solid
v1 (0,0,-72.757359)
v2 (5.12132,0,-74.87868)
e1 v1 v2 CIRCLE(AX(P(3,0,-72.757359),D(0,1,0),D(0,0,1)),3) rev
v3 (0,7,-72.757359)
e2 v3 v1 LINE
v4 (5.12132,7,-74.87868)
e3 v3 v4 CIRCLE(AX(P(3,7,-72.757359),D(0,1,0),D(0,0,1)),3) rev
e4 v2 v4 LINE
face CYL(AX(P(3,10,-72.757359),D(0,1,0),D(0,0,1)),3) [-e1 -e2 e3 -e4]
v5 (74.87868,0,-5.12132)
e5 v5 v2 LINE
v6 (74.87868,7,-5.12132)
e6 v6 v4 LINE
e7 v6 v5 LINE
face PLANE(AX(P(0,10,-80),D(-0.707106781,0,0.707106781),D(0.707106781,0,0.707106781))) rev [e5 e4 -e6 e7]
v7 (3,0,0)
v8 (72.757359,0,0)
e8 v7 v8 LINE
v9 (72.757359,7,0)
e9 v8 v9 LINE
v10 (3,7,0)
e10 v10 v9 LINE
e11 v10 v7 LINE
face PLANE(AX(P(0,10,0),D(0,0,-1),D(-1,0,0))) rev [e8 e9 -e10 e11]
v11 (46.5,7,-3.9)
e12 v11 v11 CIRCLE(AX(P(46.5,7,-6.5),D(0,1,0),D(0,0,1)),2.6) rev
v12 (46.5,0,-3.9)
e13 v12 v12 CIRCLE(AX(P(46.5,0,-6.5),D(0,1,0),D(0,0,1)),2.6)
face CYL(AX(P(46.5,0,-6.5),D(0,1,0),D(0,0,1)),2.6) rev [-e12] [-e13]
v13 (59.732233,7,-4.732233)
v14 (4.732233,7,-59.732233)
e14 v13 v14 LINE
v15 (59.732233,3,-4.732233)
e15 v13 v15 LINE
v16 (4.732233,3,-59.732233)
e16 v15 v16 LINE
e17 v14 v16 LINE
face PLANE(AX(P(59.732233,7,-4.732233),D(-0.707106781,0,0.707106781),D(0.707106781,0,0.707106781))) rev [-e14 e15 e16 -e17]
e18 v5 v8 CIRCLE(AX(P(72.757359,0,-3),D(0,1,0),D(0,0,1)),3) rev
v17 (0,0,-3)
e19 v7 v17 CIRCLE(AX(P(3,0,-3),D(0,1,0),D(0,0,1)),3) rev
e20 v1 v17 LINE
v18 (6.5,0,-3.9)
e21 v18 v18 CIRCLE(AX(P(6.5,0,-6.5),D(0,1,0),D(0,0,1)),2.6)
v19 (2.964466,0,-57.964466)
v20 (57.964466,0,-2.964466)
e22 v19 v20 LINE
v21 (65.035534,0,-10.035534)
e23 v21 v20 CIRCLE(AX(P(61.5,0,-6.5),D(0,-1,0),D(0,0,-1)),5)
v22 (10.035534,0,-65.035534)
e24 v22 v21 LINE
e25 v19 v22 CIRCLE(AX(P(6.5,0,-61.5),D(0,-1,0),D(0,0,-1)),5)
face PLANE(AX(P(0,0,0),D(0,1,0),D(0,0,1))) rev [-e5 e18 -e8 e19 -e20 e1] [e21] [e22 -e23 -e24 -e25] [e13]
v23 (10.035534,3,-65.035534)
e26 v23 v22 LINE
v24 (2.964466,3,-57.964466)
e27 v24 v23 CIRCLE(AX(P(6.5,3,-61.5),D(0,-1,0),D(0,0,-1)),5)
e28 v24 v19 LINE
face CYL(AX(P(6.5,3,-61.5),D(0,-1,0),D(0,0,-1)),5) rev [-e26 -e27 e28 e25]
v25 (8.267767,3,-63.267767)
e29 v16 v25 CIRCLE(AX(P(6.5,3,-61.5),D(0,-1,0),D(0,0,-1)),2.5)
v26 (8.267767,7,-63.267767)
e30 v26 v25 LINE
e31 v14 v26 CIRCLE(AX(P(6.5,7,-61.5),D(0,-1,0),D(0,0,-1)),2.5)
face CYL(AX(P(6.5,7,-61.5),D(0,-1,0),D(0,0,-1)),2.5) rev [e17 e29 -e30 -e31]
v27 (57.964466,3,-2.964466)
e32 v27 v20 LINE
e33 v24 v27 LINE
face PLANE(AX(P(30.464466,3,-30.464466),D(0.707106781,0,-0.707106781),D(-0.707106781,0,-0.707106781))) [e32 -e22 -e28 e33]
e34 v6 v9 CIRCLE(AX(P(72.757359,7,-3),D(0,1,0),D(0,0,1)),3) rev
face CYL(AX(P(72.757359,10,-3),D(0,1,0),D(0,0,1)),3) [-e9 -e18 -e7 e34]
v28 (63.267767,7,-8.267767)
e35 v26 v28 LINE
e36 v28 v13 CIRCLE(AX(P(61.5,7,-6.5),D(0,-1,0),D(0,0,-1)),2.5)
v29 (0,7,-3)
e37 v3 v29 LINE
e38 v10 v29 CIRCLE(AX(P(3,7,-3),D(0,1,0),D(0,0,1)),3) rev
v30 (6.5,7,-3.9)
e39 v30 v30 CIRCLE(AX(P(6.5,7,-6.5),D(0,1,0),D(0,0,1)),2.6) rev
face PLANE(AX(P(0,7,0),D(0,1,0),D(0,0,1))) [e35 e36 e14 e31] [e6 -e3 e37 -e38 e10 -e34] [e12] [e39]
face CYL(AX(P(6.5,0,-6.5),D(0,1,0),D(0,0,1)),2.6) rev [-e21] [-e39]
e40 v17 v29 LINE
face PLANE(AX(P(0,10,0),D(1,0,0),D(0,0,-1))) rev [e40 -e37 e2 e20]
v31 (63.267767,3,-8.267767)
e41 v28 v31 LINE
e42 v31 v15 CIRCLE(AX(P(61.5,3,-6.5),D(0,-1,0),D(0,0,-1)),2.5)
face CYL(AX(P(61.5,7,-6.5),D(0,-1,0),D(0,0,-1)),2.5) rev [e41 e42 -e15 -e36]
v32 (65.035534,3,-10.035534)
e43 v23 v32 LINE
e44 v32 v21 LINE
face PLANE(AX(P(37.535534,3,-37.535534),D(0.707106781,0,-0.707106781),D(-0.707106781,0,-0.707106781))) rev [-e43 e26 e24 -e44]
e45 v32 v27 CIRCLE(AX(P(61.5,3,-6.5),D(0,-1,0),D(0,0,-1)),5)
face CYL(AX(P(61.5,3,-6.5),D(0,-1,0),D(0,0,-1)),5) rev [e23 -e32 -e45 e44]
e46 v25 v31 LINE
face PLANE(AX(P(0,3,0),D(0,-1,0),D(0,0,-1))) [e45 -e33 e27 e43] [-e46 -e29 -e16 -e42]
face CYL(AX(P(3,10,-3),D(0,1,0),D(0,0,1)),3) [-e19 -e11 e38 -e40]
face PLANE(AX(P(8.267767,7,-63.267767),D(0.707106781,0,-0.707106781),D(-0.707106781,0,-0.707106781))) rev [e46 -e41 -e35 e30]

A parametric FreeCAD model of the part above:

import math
import FreeCAD as App
import Part
import Sketcher
Q = App.Units.Quantity


def edges_at(feature, points):
    """Names of the edges that pass closest to the given points."""
    edges = feature.Shape.Edges
    near = lambda p: min(range(len(edges)), key=lambda i: edges[i].distToShape(Part.Vertex(*p))[0])
    return sorted({f"Edge{near(p) + 1}" for p in points})

doc = App.newDocument("Part")
body = doc.addObject("PartDesign::Body", "Body")

sketch1 = doc.addObject("Sketcher::SketchObject", "Sketch")
body.addObject(sketch1)
sketch1.AttachmentSupport = (doc.XZ_Plane, [""])
sketch1.MapMode = "FlatFace"
sketch1.addGeometry([
    Part.LineSegment(App.Vector(0, -80, 0), App.Vector(0, 0, 0)),
    Part.LineSegment(App.Vector(0, 0, 0), App.Vector(80, 0, 0)),
    Part.LineSegment(App.Vector(80, 0, 0), App.Vector(0, -80, 0)),
], False)
sketch1.addConstraint([
    Sketcher.Constraint("Coincident", 0, 2, 1, 1),
    Sketcher.Constraint("Coincident", 1, 2, 2, 1),
    Sketcher.Constraint("Coincident", 2, 2, 0, 1),
    Sketcher.Constraint("Vertical", 0),
    Sketcher.Constraint("Horizontal", 1),
    Sketcher.Constraint("Coincident", 0, 2, -1, 1),
    Sketcher.Constraint("Equal", 1, 0),
    Sketcher.Constraint("DistanceX", 1, 1, 1, 2, Q("80 mm")),
])
pad1 = doc.addObject("PartDesign::Pad", "Pad")
body.addObject(pad1)
pad1.Profile = sketch1
pad1.Length = 10
pad1.Reversed = True

sketch2 = doc.addObject("Sketcher::SketchObject", "Sketch001")
body.addObject(sketch2)
sketch2.AttachmentSupport = (doc.XZ_Plane, [""])
sketch2.MapMode = "FlatFace"
sketch2.AttachmentOffset = App.Placement(App.Vector(0, 0, -10), App.Rotation())
sketch2.addGeometry([
    Part.Circle(App.Vector(6.5, -6.5, 0), App.Vector(0, 0, 1), 2.6),
    Part.Circle(App.Vector(6.5, -46.5, 0), App.Vector(0, 0, 1), 2.6),
    Part.Circle(App.Vector(46.5, -6.5, 0), App.Vector(0, 0, 1), 2.6),
], False)
sketch2.addConstraint([
    Sketcher.Constraint("Equal", 0, 1),
    Sketcher.Constraint("Equal", 1, 2),
    Sketcher.Constraint("Horizontal", 0, 3, 2, 3),
    Sketcher.Constraint("Vertical", 0, 3, 1, 3),
    Sketcher.Constraint("Diameter", 0, Q("5.2 mm")),
    Sketcher.Constraint("DistanceY", 1, 3, 0, 3, Q("40 mm")),
    Sketcher.Constraint("DistanceX", 0, 3, 2, 3, Q("40 mm")),
    Sketcher.Constraint("DistanceX", -1, 1, 0, 3, Q("6.5 mm")),
    Sketcher.Constraint("DistanceY", 0, 3, -1, 1, Q("6.5 mm")),
])
pocket1 = doc.addObject("PartDesign::Pocket", "Pocket")
body.addObject(pocket1)
pocket1.Profile = sketch2
pocket1.Length = 10
pocket1.Reversed = True
doc.recompute()

fillet = doc.addObject("PartDesign::Fillet", "Fillet")
body.addObject(fillet)
fillet.Base = (pocket1, edges_at(pocket1, [(80, 5, 0)]))
fillet.Radius = 3
doc.recompute()

fillet2 = doc.addObject("PartDesign::Fillet", "Fillet001")
body.addObject(fillet2)
fillet2.Base = (fillet, edges_at(fillet, [(0, 5, -80)]))
fillet2.Radius = 3
doc.recompute()

fillet3 = doc.addObject("PartDesign::Fillet", "Fillet002")
body.addObject(fillet3)
fillet3.Base = (fillet2, edges_at(fillet2, [(0, 5, 0)]))
fillet3.Radius = 3

sketch3 = doc.addObject("Sketcher::SketchObject", "Sketch002")
body.addObject(sketch3)
sketch3.AttachmentSupport = (doc.XZ_Plane, [""])
sketch3.MapMode = "FlatFace"
sketch3.AttachmentOffset = App.Placement(App.Vector(0, 0, -10), App.Rotation())
sketch3.addGeometry([
    Part.Circle(App.Vector(6, -6, 0), App.Vector(0, 0, 1), 6),
    Part.Circle(App.Vector(6, -46, 0), App.Vector(0, 0, 1), 6),
    Part.Circle(App.Vector(46, -6, 0), App.Vector(0, 0, 1), 6),
], False)
sketch3.addConstraint([
    Sketcher.Constraint("Equal", 0, 1),
    Sketcher.Constraint("Equal", 1, 2),
    Sketcher.Constraint("Horizontal", 0, 3, 2, 3),
    Sketcher.Constraint("Vertical", 0, 3, 1, 3),
    Sketcher.Constraint("Diameter", 0, Q("11 mm")),
    Sketcher.Constraint("DistanceY", 1, 3, 0, 3, Q("40 mm")),
    Sketcher.Constraint("DistanceX", 0, 3, 2, 3, Q("40 mm")),
    Sketcher.Constraint("DistanceX", -1, 1, 0, 3, Q("6.5 mm")),
    Sketcher.Constraint("DistanceY", 0, 3, -1, 1, Q("6.5 mm")),
])
pocket2 = doc.addObject("PartDesign::Pocket", "Pocket001")
body.addObject(pocket2)
pocket2.Profile = sketch3
pocket2.Length = 5
pocket2.Reversed = True

sketch4 = doc.addObject("Sketcher::SketchObject", "Sketch003")
body.addObject(sketch4)
sketch4.AttachmentSupport = (doc.XZ_Plane, [""])
sketch4.MapMode = "FlatFace"
sketch4.addGeometry(Part.Circle(App.Vector(8.5, -46.5, 0), App.Vector(0, 0, 1), 2.6), False)
sketch4.addConstraint([
    Sketcher.Constraint("DistanceX", -1, 1, 0, 3, Q("8.5 mm")),
    Sketcher.Constraint("DistanceY", 0, 3, -1, 1, Q("46.5 mm")),
    Sketcher.Constraint("Diameter", 0, Q("5.107365 mm")),
])
pocket3 = doc.addObject("PartDesign::Pocket", "Pocket002")
body.addObject(pocket3)
pocket3.Profile = sketch4
pocket3.Length = 9

sketch5 = doc.addObject("Sketcher::SketchObject", "Sketch004")
body.addObject(sketch5)
sketch5.AttachmentSupport = (doc.XZ_Plane, [""])
sketch5.MapMode = "FlatFace"
sketch5.addGeometry([
    Part.ArcOfCircle(Part.Circle(App.Vector(8.5, -46.5, 0), App.Vector(0, 0, 1), 2.6), math.radians(112), math.radians(248)),
    Part.ArcOfCircle(Part.Circle(App.Vector(6.5, -46.5, 0), App.Vector(0, 0, 1), 2.6), math.radians(66), math.radians(294)),
], False)
sketch5.addConstraint([
    Sketcher.Constraint("Coincident", 0, 1, 1, 1),
    Sketcher.Constraint("Coincident", 1, 2, 0, 2),
    Sketcher.Constraint("Horizontal", 0, 3, 1, 3),
    Sketcher.Constraint("Radius", 1, Q("2.6 mm")),
    Sketcher.Constraint("DistanceX", 1, 3, 0, 3, Q("2 mm")),
    Sketcher.Constraint("DistanceX", -1, 1, 0, 3, Q("8.5 mm")),
    Sketcher.Constraint("DistanceY", 0, 3, -1, 1, Q("46.5 mm")),
    Sketcher.Constraint("Radius", 0, Q("2.553683 mm")),
])
pad2 = doc.addObject("PartDesign::Pad", "Pad001")
body.addObject(pad2)
pad2.Profile = sketch5
pad2.Length = 5
pad2.Reversed = True

sketch6 = doc.addObject("Sketcher::SketchObject", "Sketch005")
body.addObject(sketch6)
sketch6.AttachmentSupport = (doc.XZ_Plane, [""])
sketch6.MapMode = "FlatFace"
sketch6.AttachmentOffset = App.Placement(App.Vector(0, 0, -10), App.Rotation())
sketch6.addGeometry([
    Part.ArcOfCircle(Part.Circle(App.Vector(8, -46, 0), App.Vector(0, 0, 1), 6), math.radians(-100), math.radians(100)),
    Part.ArcOfCircle(Part.Circle(App.Vector(6, -46, 0), App.Vector(0, 0, 1), 6), math.radians(80), math.radians(280)),
], False)
sketch6.addConstraint([
    Sketcher.Constraint("Coincident", 0, 1, 1, 2),
    Sketcher.Constraint("Coincident", 1, 1, 0, 2),
    Sketcher.Constraint("Equal", 0, 1),
    Sketcher.Constraint("Horizontal", 0, 3, 1, 3),
    Sketcher.Constraint("Radius", 0, Q("5.5 mm")),
    Sketcher.Constraint("DistanceX", 1, 3, 0, 3, Q("2 mm")),
    Sketcher.Constraint("DistanceX", -1, 1, 0, 3, Q("8.5 mm")),
    Sketcher.Constraint("DistanceY", 0, 3, -1, 1, Q("46.5 mm")),
])
pocket4 = doc.addObject("PartDesign::Pocket", "Pocket003")
body.addObject(pocket4)
pocket4.Profile = sketch6
pocket4.Length = 5
pocket4.Reversed = True

sketch7 = doc.addObject("Sketcher::SketchObject", "Sketch006")
body.addObject(sketch7)
sketch7.AttachmentSupport = (doc.XZ_Plane, [""])
sketch7.MapMode = "FlatFace"
sketch7.AttachmentOffset = App.Placement(App.Vector(0, 0, -10), App.Rotation())
sketch7.addGeometry([
    Part.ArcOfCircle(Part.Circle(App.Vector(8, -46, 0), App.Vector(0, 0, 1), 6), math.radians(100), math.radians(260)),
    Part.ArcOfCircle(Part.Circle(App.Vector(6, -46, 0), App.Vector(0, 0, 1), 6), math.radians(80), math.radians(280)),
], False)
sketch7.addConstraint([
    Sketcher.Constraint("Coincident", 0, 1, 1, 1),
    Sketcher.Constraint("Coincident", 1, 2, 0, 2),
    Sketcher.Constraint("Equal", 0, 1),
    Sketcher.Constraint("Horizontal", 0, 3, 1, 3),
    Sketcher.Constraint("Radius", 0, Q("5.5 mm")),
    Sketcher.Constraint("DistanceX", 1, 3, 0, 3, Q("2 mm")),
    Sketcher.Constraint("DistanceX", -1, 1, 0, 3, Q("8.5 mm")),
    Sketcher.Constraint("DistanceY", 0, 3, -1, 1, Q("46.5 mm")),
])
pad3 = doc.addObject("PartDesign::Pad", "Pad002")
body.addObject(pad3)
pad3.Profile = sketch7
pad3.Length = 5

sketch8 = doc.addObject("Sketcher::SketchObject", "Sketch007")
body.addObject(sketch8)
sketch8.AttachmentSupport = (doc.XZ_Plane, [""])
sketch8.MapMode = "FlatFace"
sketch8.AttachmentOffset = App.Placement(App.Vector(0, 0, -10), App.Rotation())
sketch8.addGeometry(Part.Circle(App.Vector(8, -46, 0), App.Vector(0, 0, 1), 6), False)
sketch8.addConstraint([
    Sketcher.Constraint("Diameter", 0, Q("11 mm")),
    Sketcher.Constraint("DistanceX", -1, 1, 0, 3, Q("8.5 mm")),
    Sketcher.Constraint("DistanceY", 0, 3, -1, 1, Q("46.5 mm")),
])
pad4 = doc.addObject("PartDesign::Pad", "Pad003")
body.addObject(pad4)
pad4.Profile = sketch8
pad4.Length = 5

sketch9 = doc.addObject("Sketcher::SketchObject", "Sketch008")
body.addObject(sketch9)
sketch9.AttachmentSupport = (doc.XZ_Plane, [""])
sketch9.MapMode = "FlatFace"
sketch9.AttachmentOffset = App.Placement(App.Vector(0, 0, -10), App.Rotation())
sketch9.addGeometry(Part.Circle(App.Vector(8, -46, 0), App.Vector(0, 0, 1), 6), False)
sketch9.addConstraint([
    Sketcher.Constraint("Diameter", 0, Q("11 mm")),
    Sketcher.Constraint("DistanceX", -1, 1, 0, 3, Q("8.5 mm")),
    Sketcher.Constraint("DistanceY", 0, 3, -1, 1, Q("46.5 mm")),
])
pocket5 = doc.addObject("PartDesign::Pocket", "Pocket004")
body.addObject(pocket5)
pocket5.Profile = sketch9
pocket5.Length = 3
pocket5.Reversed = True

sketch10 = doc.addObject("Sketcher::SketchObject", "Sketch009")
body.addObject(sketch10)
sketch10.AttachmentSupport = (doc.XZ_Plane, [""])
sketch10.MapMode = "FlatFace"
sketch10.AttachmentOffset = App.Placement(App.Vector(0, 0, -5), App.Rotation())
sketch10.addGeometry(Part.Circle(App.Vector(8.5, -46.5, 0), App.Vector(0, 0, 1), 2.6), False)
sketch10.addConstraint([
    Sketcher.Constraint("Diameter", 0, Q("5.3 mm")),
    Sketcher.Constraint("DistanceX", -1, 1, 0, 3, Q("8.5 mm")),
    Sketcher.Constraint("DistanceY", 0, 3, -1, 1, Q("46.5 mm")),
])
pocket6 = doc.addObject("PartDesign::Pocket", "Pocket005")
body.addObject(pocket6)
pocket6.Profile = sketch10
pocket6.Length = 3

sketch11 = doc.addObject("Sketcher::SketchObject", "Sketch010")
body.addObject(sketch11)
sketch11.AttachmentSupport = (doc.XZ_Plane, [""])
sketch11.MapMode = "FlatFace"
sketch11.addGeometry(Part.Circle(App.Vector(8.5, -46.5, 0), App.Vector(0, 0, 1), 2.6), False)
sketch11.addConstraint([
    Sketcher.Constraint("Diameter", 0, Q("5.3 mm")),
    Sketcher.Constraint("DistanceX", -1, 1, 0, 3, Q("8.5 mm")),
    Sketcher.Constraint("DistanceY", 0, 3, -1, 1, Q("46.5 mm")),
])
pocket7 = doc.addObject("PartDesign::Pocket", "Pocket006")
body.addObject(pocket7)
pocket7.Profile = sketch11
pocket7.Length = 5

sketch12 = doc.addObject("Sketcher::SketchObject", "Sketch011")
body.addObject(sketch12)
sketch12.AttachmentSupport = (doc.XZ_Plane, [""])
sketch12.MapMode = "FlatFace"
sketch12.addGeometry(Part.Circle(App.Vector(8.5, -46.5, 0), App.Vector(0, 0, 1), 2.6), False)
sketch12.addConstraint([
    Sketcher.Constraint("Diameter", 0, Q("5.3 mm")),
    Sketcher.Constraint("DistanceX", -1, 1, 0, 3, Q("8.5 mm")),
    Sketcher.Constraint("DistanceY", 0, 3, -1, 1, Q("46.5 mm")),
])
pad5 = doc.addObject("PartDesign::Pad", "Pad004")
body.addObject(pad5)
pad5.Profile = sketch12
pad5.Length = 10
pad5.Reversed = True

sketch13 = doc.addObject("Sketcher::SketchObject", "Sketch012")
body.addObject(sketch13)
sketch13.AttachmentSupport = (doc.XZ_Plane, [""])
sketch13.MapMode = "FlatFace"
sketch13.AttachmentOffset = App.Placement(App.Vector(0, 0, -10), App.Rotation())
sketch13.addGeometry(Part.Circle(App.Vector(8, -46, 0), App.Vector(0, 0, 1), 6), False)
sketch13.addConstraint([
    Sketcher.Constraint("Diameter", 0, Q("11 mm")),
    Sketcher.Constraint("DistanceX", -1, 1, 0, 3, Q("8.5 mm")),
    Sketcher.Constraint("DistanceY", 0, 3, -1, 1, Q("46.5 mm")),
])
pad6 = doc.addObject("PartDesign::Pad", "Pad005")
body.addObject(pad6)
pad6.Profile = sketch13
pad6.Length = 3

sketch14 = doc.addObject("Sketcher::SketchObject", "Sketch013")
body.addObject(sketch14)
sketch14.AttachmentSupport = (doc.XZ_Plane, [""])
sketch14.MapMode = "FlatFace"
sketch14.addGeometry([
    Part.ArcOfCircle(Part.Circle(App.Vector(6.5, -61.5, 0), App.Vector(0, 0, 1), 5), math.radians(135), math.radians(270)),
    Part.ArcOfCircle(Part.Circle(App.Vector(6.5, -61.5, 0), App.Vector(0, 0, 1), 5), math.radians(-90), math.radians(-45)),
    Part.LineSegment(App.Vector(10, -65, 0), App.Vector(65, -10, 0)),
    Part.ArcOfCircle(Part.Circle(App.Vector(61.5, -6.5, 0), App.Vector(0, 0, 1), 5), math.radians(-45), math.radians(0)),
    Part.ArcOfCircle(Part.Circle(App.Vector(61.5, -6.5, 0), App.Vector(0, 0, 1), 5), math.radians(0), math.radians(135)),
    Part.LineSegment(App.Vector(58, -3, 0), App.Vector(3, -58, 0)),
], False)
sketch14.addConstraint([
    Sketcher.Constraint("Tangent", 0, 2, 1, 1),
    Sketcher.Constraint("Tangent", 1, 2, 2, 1),
    Sketcher.Constraint("Tangent", 2, 2, 3, 1),
    Sketcher.Constraint("Tangent", 3, 2, 4, 1),
    Sketcher.Constraint("Tangent", 4, 2, 5, 1),
    Sketcher.Constraint("Tangent", 5, 2, 0, 1),
    Sketcher.Constraint("Equal", 0, 1),
    Sketcher.Constraint("Equal", 1, 3),
    Sketcher.Constraint("Equal", 3, 4),
    Sketcher.Constraint("Horizontal", 4, 3, 3, 2),
    Sketcher.Constraint("Vertical", 1, 3, 0, 2),
    Sketcher.Constraint("Radius", 0, Q("5 mm")),
    Sketcher.Constraint("Angle", 2, Q("45 deg")),
    Sketcher.Constraint("DistanceX", 0, 3, 3, 3, Q("55 mm")),
    Sketcher.Constraint("DistanceX", -1, 1, 0, 3, Q("6.5 mm")),
    Sketcher.Constraint("DistanceY", 0, 3, -1, 1, Q("61.5 mm")),
])
pocket8 = doc.addObject("PartDesign::Pocket", "Pocket007")
body.addObject(pocket8)
pocket8.Profile = sketch14
pocket8.Length = 3

sketch15 = doc.addObject("Sketcher::SketchObject", "Sketch014")
body.addObject(sketch15)
sketch15.AttachmentSupport = (doc.XZ_Plane, [""])
sketch15.MapMode = "FlatFace"
sketch15.AttachmentOffset = App.Placement(App.Vector(0, 0, -10), App.Rotation())
sketch15.addGeometry([
    Part.Circle(App.Vector(6.5, -6.5, 0), App.Vector(0, 0, 1), 5.5),
    Part.Circle(App.Vector(6.5, -6.5, 0), App.Vector(0, 0, 1), 2.6),
    Part.Circle(App.Vector(46.5, -6.5, 0), App.Vector(0, 0, 1), 5.5),
    Part.Circle(App.Vector(46.5, -6.5, 0), App.Vector(0, 0, 1), 2.6),
], False)
sketch15.addConstraint([
    Sketcher.Constraint("Coincident", 1, 3, 0, 3),
    Sketcher.Constraint("Coincident", 3, 3, 2, 3),
    Sketcher.Constraint("Equal", 0, 2),
    Sketcher.Constraint("Equal", 1, 3),
    Sketcher.Constraint("Horizontal", 1, 3, 2, 3),
    Sketcher.Constraint("Diameter", 0, Q("11 mm")),
    Sketcher.Constraint("Diameter", 1, Q("5.2 mm")),
    Sketcher.Constraint("DistanceX", 0, 3, 2, 3, Q("40 mm")),
    Sketcher.Constraint("DistanceX", -1, 1, 0, 3, Q("6.5 mm")),
    Sketcher.Constraint("DistanceY", 0, 3, -1, 1, Q("6.5 mm")),
])
pad7 = doc.addObject("PartDesign::Pad", "Pad006")
body.addObject(pad7)
pad7.Profile = sketch15
pad7.Length = 5

sketch16 = doc.addObject("Sketcher::SketchObject", "Sketch015")
body.addObject(sketch16)
sketch16.AttachmentSupport = (doc.XZ_Plane, [""])
sketch16.MapMode = "FlatFace"
sketch16.AttachmentOffset = App.Placement(App.Vector(0, 0, -10), App.Rotation())
sketch16.addGeometry([
    Part.LineSegment(App.Vector(-22, -88, 0), App.Vector(-22, 21, 0)),
    Part.LineSegment(App.Vector(-22, 21, 0), App.Vector(97, 21, 0)),
    Part.LineSegment(App.Vector(97, 21, 0), App.Vector(97, -88, 0)),
    Part.LineSegment(App.Vector(97, -88, 0), App.Vector(-22, -88, 0)),
], False)
sketch16.addConstraint([
    Sketcher.Constraint("Coincident", 0, 2, 1, 1),
    Sketcher.Constraint("Coincident", 1, 2, 2, 1),
    Sketcher.Constraint("Coincident", 2, 2, 3, 1),
    Sketcher.Constraint("Coincident", 3, 2, 0, 1),
    Sketcher.Constraint("Vertical", 0),
    Sketcher.Constraint("Horizontal", 1),
    Sketcher.Constraint("Vertical", 2),
    Sketcher.Constraint("Horizontal", 3),
    Sketcher.Constraint("DistanceX", 1, 1, 1, 2, Q("118.65596 mm")),
    Sketcher.Constraint("DistanceY", 0, 1, 0, 2, Q("108.474676 mm")),
    Sketcher.Constraint("DistanceY", -1, 1, 0, 2, Q("20.946521 mm")),
    Sketcher.Constraint("DistanceX", 0, 2, -1, 1, Q("21.889233 mm")),
])
pocket9 = doc.addObject("PartDesign::Pocket", "Pocket008")
body.addObject(pocket9)
pocket9.Profile = sketch16
pocket9.Length = 3
pocket9.Reversed = True

sketch17 = doc.addObject("Sketcher::SketchObject", "Sketch016")
body.addObject(sketch17)
sketch17.AttachmentSupport = (doc.XZ_Plane, [""])
sketch17.MapMode = "FlatFace"
sketch17.AttachmentOffset = App.Placement(App.Vector(0, 0, -3), App.Rotation())
sketch17.addGeometry([
    Part.LineSegment(App.Vector(8.3, -63.3, 0), App.Vector(63.3, -8.3, 0)),
    Part.ArcOfCircle(Part.Circle(App.Vector(61.5, -6.5, 0), App.Vector(0, 0, 1), 2.5), math.radians(-45), math.radians(135)),
    Part.LineSegment(App.Vector(59.7, -4.7, 0), App.Vector(4.7, -59.7, 0)),
    Part.ArcOfCircle(Part.Circle(App.Vector(6.5, -61.5, 0), App.Vector(0, 0, 1), 2.5), math.radians(135), math.radians(315)),
], False)
sketch17.addConstraint([
    Sketcher.Constraint("Tangent", 0, 2, 1, 1),
    Sketcher.Constraint("Tangent", 1, 2, 2, 1),
    Sketcher.Constraint("Tangent", 2, 2, 3, 1),
    Sketcher.Constraint("Tangent", 3, 2, 0, 1),
    Sketcher.Constraint("Equal", 1, 3),
    Sketcher.Constraint("Radius", 1, Q("2.5 mm")),
    Sketcher.Constraint("Angle", 0, Q("45 deg")),
    Sketcher.Constraint("DistanceX", 3, 3, 1, 3, Q("55 mm")),
    Sketcher.Constraint("DistanceX", -1, 1, 1, 3, Q("61.5 mm")),
    Sketcher.Constraint("DistanceY", 1, 3, -1, 1, Q("6.5 mm")),
])
pocket10 = doc.addObject("PartDesign::Pocket", "Pocket009")
body.addObject(pocket10)
pocket10.Profile = sketch17
pocket10.Type = "ThroughAll"

doc.recompute()
